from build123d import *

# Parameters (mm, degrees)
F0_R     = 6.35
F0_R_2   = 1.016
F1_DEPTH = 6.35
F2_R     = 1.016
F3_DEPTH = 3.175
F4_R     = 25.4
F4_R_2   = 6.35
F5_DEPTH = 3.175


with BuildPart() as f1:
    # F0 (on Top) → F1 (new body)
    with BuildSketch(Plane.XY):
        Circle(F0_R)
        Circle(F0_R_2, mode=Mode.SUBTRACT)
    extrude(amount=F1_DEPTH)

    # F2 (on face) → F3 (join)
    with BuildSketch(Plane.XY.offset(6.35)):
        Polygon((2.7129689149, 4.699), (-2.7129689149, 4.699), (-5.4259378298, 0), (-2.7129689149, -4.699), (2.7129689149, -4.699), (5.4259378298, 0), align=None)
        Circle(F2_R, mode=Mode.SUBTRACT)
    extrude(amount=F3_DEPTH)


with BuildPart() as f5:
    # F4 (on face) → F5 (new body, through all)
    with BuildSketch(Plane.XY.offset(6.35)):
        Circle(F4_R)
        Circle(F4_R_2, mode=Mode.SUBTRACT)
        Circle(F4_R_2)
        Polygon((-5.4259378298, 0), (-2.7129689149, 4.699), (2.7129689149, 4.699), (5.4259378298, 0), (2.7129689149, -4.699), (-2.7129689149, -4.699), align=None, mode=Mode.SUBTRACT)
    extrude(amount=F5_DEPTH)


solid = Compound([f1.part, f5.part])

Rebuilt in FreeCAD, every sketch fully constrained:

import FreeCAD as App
import Part
import Sketcher
Q = App.Units.Quantity


def add_polygon(sketch, points):
    """Adds a closed chain of lines whose ends are joined by coincident constraints."""
    first, n = sketch.GeometryCount, len(points)
    for a, b in zip(points, points[1:] + points[:1]):
        sketch.addGeometry(Part.LineSegment(App.Vector(*a, 0), App.Vector(*b, 0)), False)
    for i in range(n):
        sketch.addConstraint(Sketcher.Constraint("Coincident", first + i, 2, first + (i + 1) % n, 1))

doc = App.newDocument("Part")
body = doc.addObject("PartDesign::Body", "Body")

# Sketch on XY plane
sketch1 = body.newObject("Sketcher::SketchObject", "Sketch")
sketch1.AttachmentSupport = (doc.getObject("XY_Plane"), [""])
sketch1.MapMode = "FlatFace"
sketch1.addGeometry([
    Part.Circle(App.Vector(0, 0, 0), App.Vector(0, 0, 1), 6.3),
    Part.Circle(App.Vector(0, 0, 0), App.Vector(0, 0, 1), 1),
], False)
sketch1.addConstraint([
    Sketcher.Constraint("Coincident", 0, 3, -1, 1),
    Sketcher.Constraint("Coincident", 1, 3, -1, 1),
    Sketcher.Constraint("Diameter", 0, Q("0.5 in")),
    Sketcher.Constraint("Diameter", 1, Q("0.08 in")),
])
pad1 = body.newObject("PartDesign::Pad", "Pad")
pad1.Profile = sketch1
pad1.Length = Q("0.25 in")

# Sketch on XY plane
sketch2 = body.newObject("Sketcher::SketchObject", "Sketch001")
sketch2.AttachmentSupport = (doc.getObject("XY_Plane"), [""])
sketch2.MapMode = "FlatFace"
sketch2.AttachmentOffset = App.Placement(App.Vector(0, 0, 0.25 * 25.4), App.Rotation())
add_polygon(sketch2, [(2.7, 4.7), (-2.7, 4.7), (-5.4, 0), (-2.7, -4.7), (2.7, -4.7), (5.4, 0)])  # lines 0-5
sketch2.addGeometry(Part.Circle(App.Vector(0, 0, 0), App.Vector(0, 0, 1), 1), False)  # 6
sketch2.addConstraint([
    Sketcher.Constraint("Horizontal", 0),
    Sketcher.Constraint("Horizontal", 3),
    Sketcher.Constraint("Coincident", 6, 3, -1, 1),
    Sketcher.Constraint("Symmetric", 0, 2, 3, 2, -1, 1),
    Sketcher.Constraint("Symmetric", 1, 2, 4, 2, -1, 1),
    Sketcher.Constraint("PointOnObject", 1, 2, -1),
    Sketcher.Constraint("Parallel", 2, 5),
    Sketcher.Constraint("Vertical", 0, 2, 2, 2),
    Sketcher.Constraint("Diameter", 6, Q("0.08 in")),
    Sketcher.Constraint("Angle", 1, Q("-120 deg")),
    Sketcher.Constraint("DistanceY", 2, 2, 0, 2, Q("0.37 in")),
    Sketcher.Constraint("DistanceX", 0, 2, 0, 1, Q("5.425938 mm")),
])
pad2 = body.newObject("PartDesign::Pad", "Pad001")
pad2.Profile = sketch2
pad2.Length = Q("0.125 in")
body2 = doc.addObject("PartDesign::Body", "Body001")

# Sketch on XY plane
sketch3 = body2.newObject("Sketcher::SketchObject", "Sketch002")
sketch3.AttachmentSupport = (doc.getObject("XY_Plane001"), [""])
sketch3.MapMode = "FlatFace"
sketch3.AttachmentOffset = App.Placement(App.Vector(0, 0, 0.25 * 25.4), App.Rotation())
sketch3.addGeometry(Part.Circle(App.Vector(0, 0, 0), App.Vector(0, 0, 1), 25), False)  # 0
add_polygon(sketch3, [(-3, -5), (-5, 0), (-3, 5), (3, 5), (5, 0), (3, -5)])  # lines 1-6
sketch3.addConstraint([
    Sketcher.Constraint("Horizontal", 3),
    Sketcher.Constraint("Horizontal", 6),
    Sketcher.Constraint("Coincident", 0, 3, -1, 1),
    Sketcher.Constraint("Symmetric", 1, 2, 4, 2, -1, 1),
    Sketcher.Constraint("Symmetric", 2, 2, 5, 2, -1, 1),
    Sketcher.Constraint("PointOnObject", 1, 2, -1),
    Sketcher.Constraint("Parallel", 1, 4),
    Sketcher.Constraint("Vertical", 3, 2, 5, 2),
    Sketcher.Constraint("Diameter", 0, Q("2 in")),
    Sketcher.Constraint("Angle", 1, Q("120 deg")),
    Sketcher.Constraint("DistanceY", 5, 2, 3, 2, Q("0.37 in")),
    Sketcher.Constraint("DistanceX", 3, 1, 3, 2, Q("5.425938 mm")),
])
pad3 = body2.newObject("PartDesign::Pad", "Pad002")
pad3.Profile = sketch3
pad3.Length = Q("0.125 in")

doc.recompute()
